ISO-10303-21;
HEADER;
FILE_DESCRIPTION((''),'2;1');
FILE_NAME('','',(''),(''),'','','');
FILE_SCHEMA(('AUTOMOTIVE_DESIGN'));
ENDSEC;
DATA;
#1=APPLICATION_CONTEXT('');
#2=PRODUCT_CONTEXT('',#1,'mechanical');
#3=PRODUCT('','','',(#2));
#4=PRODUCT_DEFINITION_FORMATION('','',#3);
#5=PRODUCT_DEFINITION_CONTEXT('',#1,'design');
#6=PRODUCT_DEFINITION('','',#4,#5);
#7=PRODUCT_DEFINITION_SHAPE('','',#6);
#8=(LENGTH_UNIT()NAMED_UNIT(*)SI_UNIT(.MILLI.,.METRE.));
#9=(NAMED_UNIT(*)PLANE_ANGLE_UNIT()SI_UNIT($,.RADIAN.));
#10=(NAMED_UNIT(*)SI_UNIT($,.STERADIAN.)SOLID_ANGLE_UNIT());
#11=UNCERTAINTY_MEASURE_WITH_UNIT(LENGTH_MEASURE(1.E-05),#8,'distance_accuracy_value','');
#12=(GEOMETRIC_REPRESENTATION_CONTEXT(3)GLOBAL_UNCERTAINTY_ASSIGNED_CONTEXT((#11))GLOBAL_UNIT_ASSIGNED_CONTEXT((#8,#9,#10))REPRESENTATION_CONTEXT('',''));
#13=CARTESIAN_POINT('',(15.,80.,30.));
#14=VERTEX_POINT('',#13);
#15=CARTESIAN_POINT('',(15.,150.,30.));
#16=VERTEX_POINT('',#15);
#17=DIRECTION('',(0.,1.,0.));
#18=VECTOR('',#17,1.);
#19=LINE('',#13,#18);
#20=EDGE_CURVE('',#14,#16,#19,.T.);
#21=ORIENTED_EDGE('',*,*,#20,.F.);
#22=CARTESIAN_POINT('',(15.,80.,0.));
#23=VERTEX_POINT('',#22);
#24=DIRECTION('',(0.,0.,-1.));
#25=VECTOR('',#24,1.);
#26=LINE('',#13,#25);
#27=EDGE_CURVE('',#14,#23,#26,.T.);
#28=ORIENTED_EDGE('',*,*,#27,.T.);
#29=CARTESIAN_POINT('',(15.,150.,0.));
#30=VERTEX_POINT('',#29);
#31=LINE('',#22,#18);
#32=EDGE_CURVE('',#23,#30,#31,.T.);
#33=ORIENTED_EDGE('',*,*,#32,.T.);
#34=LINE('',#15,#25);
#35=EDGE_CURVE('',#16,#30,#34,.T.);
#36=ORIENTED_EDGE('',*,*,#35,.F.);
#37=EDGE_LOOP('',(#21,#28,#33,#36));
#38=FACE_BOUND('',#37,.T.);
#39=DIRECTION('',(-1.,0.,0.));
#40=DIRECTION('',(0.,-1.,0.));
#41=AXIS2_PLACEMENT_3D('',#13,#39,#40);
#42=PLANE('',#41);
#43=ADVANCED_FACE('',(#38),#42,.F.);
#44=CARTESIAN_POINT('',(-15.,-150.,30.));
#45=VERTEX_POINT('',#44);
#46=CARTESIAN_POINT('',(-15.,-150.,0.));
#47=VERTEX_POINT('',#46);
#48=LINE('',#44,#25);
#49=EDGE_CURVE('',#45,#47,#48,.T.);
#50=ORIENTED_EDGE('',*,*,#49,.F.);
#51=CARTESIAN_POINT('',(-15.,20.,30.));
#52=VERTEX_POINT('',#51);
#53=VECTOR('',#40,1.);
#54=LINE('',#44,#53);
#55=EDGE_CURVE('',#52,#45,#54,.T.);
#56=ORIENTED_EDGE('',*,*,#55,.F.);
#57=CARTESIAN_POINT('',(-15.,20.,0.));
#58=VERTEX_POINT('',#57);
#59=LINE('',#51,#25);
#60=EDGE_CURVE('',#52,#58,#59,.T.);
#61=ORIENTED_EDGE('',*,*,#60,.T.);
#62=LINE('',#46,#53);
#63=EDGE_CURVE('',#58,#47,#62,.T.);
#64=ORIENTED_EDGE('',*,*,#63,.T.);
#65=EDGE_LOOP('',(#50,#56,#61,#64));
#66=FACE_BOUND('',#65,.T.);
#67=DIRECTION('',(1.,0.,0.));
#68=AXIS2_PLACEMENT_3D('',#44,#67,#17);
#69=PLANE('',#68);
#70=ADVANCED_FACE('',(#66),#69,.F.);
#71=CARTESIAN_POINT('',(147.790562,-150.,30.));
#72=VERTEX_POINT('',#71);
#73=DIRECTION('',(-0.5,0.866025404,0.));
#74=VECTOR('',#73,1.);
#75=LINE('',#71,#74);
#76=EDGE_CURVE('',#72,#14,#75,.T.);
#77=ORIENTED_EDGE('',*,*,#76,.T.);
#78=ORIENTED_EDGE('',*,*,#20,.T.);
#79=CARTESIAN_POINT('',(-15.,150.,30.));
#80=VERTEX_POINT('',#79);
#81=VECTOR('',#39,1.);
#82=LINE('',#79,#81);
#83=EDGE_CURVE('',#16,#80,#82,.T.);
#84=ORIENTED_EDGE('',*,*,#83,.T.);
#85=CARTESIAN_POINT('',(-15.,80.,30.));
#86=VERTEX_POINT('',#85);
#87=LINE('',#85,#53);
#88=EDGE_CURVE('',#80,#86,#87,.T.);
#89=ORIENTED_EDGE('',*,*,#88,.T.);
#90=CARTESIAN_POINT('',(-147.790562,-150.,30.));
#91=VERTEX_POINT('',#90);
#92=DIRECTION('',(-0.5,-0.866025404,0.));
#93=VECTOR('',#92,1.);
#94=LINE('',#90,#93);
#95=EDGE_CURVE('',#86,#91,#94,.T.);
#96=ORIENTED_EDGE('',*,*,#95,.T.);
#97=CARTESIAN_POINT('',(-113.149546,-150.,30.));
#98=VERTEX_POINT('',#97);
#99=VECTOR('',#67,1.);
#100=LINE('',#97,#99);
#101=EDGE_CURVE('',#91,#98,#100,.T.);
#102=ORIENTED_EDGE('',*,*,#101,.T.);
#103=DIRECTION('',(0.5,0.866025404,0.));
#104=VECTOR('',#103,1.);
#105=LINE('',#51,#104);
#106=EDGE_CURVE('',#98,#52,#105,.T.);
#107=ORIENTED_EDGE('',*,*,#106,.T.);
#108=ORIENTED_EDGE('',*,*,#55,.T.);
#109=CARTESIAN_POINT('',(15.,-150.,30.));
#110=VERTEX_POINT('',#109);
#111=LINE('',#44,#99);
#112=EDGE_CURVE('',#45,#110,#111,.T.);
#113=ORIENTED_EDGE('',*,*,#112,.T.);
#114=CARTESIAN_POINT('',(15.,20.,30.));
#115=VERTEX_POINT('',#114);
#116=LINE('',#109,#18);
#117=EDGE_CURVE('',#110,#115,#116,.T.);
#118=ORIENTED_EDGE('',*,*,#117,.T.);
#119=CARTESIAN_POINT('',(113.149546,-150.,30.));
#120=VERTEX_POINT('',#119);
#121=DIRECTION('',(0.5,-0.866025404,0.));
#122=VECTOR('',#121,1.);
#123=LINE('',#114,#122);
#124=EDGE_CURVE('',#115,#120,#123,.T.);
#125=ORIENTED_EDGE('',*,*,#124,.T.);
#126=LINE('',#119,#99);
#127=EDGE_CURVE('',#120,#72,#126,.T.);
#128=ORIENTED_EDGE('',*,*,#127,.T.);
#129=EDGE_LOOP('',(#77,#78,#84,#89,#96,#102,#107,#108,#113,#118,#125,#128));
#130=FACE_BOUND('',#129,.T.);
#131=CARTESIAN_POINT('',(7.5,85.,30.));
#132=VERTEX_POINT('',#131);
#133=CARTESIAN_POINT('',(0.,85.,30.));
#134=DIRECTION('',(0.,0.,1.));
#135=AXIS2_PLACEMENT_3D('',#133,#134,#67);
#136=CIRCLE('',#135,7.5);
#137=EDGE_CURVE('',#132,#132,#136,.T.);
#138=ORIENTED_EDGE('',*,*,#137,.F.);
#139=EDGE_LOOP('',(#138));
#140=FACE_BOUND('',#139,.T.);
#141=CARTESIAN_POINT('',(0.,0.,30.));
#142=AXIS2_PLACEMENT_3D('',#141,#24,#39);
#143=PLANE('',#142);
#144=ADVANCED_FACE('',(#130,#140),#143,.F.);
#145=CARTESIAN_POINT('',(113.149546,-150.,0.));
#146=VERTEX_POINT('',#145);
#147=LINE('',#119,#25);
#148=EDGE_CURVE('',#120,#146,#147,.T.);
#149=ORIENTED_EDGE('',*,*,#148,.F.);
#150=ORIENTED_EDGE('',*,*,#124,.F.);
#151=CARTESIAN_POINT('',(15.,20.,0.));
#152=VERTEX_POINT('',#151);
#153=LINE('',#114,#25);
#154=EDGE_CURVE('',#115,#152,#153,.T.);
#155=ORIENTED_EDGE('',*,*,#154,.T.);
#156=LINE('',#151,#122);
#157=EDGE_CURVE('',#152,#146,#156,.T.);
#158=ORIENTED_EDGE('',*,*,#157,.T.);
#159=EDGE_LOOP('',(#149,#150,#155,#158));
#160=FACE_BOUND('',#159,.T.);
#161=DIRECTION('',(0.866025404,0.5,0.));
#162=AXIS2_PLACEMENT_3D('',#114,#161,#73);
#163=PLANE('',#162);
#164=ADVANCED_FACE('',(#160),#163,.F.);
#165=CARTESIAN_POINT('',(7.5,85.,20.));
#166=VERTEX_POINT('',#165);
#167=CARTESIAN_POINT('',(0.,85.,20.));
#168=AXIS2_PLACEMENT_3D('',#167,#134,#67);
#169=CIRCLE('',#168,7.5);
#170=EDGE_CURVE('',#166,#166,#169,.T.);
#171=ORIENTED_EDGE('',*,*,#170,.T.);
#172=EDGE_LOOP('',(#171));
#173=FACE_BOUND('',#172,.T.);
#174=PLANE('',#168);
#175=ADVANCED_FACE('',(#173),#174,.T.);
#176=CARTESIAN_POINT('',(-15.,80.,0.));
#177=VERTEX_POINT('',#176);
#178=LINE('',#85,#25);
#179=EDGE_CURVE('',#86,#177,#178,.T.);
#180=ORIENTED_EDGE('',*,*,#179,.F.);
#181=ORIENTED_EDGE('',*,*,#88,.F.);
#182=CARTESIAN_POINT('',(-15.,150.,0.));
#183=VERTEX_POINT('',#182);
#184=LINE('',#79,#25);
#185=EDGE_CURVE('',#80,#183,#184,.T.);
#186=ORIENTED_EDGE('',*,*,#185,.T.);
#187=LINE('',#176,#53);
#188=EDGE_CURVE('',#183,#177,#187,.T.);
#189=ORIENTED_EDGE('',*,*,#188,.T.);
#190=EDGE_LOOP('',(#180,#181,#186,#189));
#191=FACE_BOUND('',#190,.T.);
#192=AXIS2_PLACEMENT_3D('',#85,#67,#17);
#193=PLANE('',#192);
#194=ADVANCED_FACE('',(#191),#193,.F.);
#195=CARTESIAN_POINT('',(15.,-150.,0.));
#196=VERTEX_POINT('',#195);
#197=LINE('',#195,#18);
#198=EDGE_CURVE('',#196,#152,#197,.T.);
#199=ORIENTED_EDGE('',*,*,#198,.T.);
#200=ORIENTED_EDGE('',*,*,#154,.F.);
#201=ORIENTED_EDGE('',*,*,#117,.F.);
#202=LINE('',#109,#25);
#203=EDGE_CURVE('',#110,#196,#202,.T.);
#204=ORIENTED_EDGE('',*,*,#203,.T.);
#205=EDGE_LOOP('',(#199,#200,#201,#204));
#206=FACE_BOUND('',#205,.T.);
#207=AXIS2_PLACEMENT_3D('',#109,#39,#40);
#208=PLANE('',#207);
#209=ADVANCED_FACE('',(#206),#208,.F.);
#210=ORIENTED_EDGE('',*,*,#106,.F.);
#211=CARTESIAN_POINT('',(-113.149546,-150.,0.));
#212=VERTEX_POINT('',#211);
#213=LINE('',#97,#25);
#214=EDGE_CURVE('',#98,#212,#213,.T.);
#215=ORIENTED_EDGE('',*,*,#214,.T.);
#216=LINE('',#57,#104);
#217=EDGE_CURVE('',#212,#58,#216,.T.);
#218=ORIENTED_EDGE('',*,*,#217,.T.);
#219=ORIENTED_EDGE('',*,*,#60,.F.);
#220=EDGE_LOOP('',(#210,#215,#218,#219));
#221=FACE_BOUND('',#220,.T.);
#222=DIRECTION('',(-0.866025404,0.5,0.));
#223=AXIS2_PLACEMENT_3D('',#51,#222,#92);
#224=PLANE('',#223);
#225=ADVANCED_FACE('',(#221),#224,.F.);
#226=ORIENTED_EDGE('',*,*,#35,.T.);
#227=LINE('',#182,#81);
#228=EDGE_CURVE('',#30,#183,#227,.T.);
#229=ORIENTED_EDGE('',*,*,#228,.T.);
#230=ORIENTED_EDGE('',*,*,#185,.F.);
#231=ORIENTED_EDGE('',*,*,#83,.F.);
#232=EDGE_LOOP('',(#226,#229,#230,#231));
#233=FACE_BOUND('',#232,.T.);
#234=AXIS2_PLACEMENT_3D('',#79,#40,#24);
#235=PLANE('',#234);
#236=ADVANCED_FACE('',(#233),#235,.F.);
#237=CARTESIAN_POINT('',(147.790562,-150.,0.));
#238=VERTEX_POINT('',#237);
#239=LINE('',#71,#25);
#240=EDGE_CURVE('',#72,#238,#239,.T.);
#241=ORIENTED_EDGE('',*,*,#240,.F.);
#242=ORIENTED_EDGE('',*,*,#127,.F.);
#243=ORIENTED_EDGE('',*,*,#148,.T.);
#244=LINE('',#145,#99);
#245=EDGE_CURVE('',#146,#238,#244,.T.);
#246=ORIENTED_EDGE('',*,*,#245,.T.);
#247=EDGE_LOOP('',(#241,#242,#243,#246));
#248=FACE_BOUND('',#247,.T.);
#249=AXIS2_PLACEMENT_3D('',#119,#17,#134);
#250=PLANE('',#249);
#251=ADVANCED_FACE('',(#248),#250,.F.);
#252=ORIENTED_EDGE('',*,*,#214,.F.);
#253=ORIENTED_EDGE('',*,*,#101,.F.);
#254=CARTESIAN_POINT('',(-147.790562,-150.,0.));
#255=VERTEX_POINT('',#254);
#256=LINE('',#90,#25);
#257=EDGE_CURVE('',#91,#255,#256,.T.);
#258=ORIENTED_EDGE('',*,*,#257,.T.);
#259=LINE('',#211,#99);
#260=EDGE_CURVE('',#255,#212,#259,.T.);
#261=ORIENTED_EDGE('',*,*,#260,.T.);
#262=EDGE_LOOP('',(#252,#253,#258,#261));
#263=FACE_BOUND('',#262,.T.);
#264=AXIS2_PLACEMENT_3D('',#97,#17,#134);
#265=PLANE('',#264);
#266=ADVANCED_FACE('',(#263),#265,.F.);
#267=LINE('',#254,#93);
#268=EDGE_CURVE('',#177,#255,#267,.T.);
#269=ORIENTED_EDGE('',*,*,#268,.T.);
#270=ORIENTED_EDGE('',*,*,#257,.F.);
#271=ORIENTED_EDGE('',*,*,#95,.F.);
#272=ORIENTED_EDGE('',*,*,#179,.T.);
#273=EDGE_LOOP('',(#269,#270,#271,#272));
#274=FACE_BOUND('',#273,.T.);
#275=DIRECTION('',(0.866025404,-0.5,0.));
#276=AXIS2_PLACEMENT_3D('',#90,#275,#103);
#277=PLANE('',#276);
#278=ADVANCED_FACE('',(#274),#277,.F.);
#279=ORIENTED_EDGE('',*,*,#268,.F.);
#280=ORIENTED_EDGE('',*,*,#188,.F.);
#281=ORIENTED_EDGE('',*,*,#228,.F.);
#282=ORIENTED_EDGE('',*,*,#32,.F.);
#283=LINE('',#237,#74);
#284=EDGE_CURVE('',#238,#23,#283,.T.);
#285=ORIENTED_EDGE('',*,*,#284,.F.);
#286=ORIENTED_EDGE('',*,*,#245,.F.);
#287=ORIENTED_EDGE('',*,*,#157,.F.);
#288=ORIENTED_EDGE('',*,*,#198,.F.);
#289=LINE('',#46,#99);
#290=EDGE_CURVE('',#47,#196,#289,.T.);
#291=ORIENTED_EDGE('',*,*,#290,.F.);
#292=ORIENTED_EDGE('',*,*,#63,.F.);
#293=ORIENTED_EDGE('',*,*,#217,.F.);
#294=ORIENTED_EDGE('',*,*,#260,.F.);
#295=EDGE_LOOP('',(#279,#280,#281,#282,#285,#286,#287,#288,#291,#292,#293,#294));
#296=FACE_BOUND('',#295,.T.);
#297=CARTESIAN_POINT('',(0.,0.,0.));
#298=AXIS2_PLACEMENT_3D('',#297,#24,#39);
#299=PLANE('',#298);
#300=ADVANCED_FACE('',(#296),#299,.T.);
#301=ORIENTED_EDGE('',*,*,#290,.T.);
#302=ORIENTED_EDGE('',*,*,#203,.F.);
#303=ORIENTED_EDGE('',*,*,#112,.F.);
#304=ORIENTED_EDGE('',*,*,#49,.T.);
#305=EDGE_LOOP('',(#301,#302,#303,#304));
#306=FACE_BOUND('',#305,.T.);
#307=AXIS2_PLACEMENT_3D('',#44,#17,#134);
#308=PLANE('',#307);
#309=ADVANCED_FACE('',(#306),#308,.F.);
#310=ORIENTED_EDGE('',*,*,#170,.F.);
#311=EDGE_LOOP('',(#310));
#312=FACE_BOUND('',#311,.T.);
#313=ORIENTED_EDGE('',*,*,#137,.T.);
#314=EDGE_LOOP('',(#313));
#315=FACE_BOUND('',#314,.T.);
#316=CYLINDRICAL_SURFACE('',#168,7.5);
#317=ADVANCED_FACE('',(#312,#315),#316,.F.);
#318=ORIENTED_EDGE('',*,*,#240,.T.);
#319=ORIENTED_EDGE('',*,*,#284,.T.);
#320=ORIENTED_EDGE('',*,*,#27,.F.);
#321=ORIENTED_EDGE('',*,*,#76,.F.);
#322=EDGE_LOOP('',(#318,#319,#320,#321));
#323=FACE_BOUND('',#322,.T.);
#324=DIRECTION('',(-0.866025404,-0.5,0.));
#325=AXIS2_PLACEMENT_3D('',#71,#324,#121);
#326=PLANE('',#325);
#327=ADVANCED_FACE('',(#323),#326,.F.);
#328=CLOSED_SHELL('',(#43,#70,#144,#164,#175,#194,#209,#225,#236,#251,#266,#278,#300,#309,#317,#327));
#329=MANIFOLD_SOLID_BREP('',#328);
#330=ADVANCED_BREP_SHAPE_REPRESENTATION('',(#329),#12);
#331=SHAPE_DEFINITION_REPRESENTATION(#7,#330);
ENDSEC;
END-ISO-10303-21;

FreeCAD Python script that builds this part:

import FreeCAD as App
import Part
import Sketcher

V = App.Vector
Q = App.Units.Quantity


def add_polygon(sketch, points):
    """Adds a closed chain of lines whose ends are joined by coincident constraints."""
    first, n = sketch.GeometryCount, len(points)
    for a, b in zip(points, points[1:] + points[:1]):
        sketch.addGeometry(Part.LineSegment(App.Vector(*a, 0), App.Vector(*b, 0)), False)
    for i in range(n):
        sketch.addConstraint(Sketcher.Constraint("Coincident", first + i, 2, first + (i + 1) % n, 1))

doc = App.newDocument("Part")
params = doc.addObject("Spreadsheet::Sheet", "Params")
for row, (alias, value) in enumerate([
    ("sketch1_width", "30 mm"),
    ("sketch1_height", "170 mm"),
    ("sketch1_height2", "70 mm"),
    ("pad1_length", "30 mm"),
    ("sketch2_diameter", "15 mm"),
    ("pocket1_length", "10 mm"),
], start=1):
    params.set(f"A{row}", alias)
    params.set(f"B{row}", "=" + value)
    params.setAlias(f"B{row}", alias)

body = doc.addObject("PartDesign::Body", "Body")

sketch1 = body.newObject("Sketcher::SketchObject", "Sketch")
sketch1.AttachmentSupport = (doc.getObject("XY_Plane"), [""])
sketch1.MapMode = "FlatFace"
add_polygon(sketch1, [(-113, -150), (-15, 20), (-15, -150), (15, -150), (15, 20), (113, -150), (148, -150), (15, 80), (15, 150), (-15, 150), (-15, 80), (-148, -150)])
sketch1.addConstraint([
    Sketcher.Constraint("Vertical", 1),
    Sketcher.Constraint("Horizontal", 2),
    Sketcher.Constraint("Vertical", 3),
    Sketcher.Constraint("Horizontal", 5),
    Sketcher.Constraint("Vertical", 7),
    Sketcher.Constraint("Horizontal", 8),
    Sketcher.Constraint("Vertical", 9),
    Sketcher.Constraint("Horizontal", 11),
    Sketcher.Constraint("Symmetric", 1, 2, 7, 2, -1, 1),
    Sketcher.Constraint("Symmetric", 0, 2, 3, 2, -2),
    Sketcher.Constraint("Symmetric", 6, 2, 9, 2, -2),
    Sketcher.Constraint("Symmetric", 5, 2, 10, 2, -2),
    Sketcher.Constraint("Parallel", 4, 6),
    Sketcher.Constraint("Parallel", 0, 10),
    Sketcher.Constraint("Horizontal", 2, 2, 4, 2),
    Sketcher.Constraint("DistanceX", 2, 1, 2, 2, Q("30 mm")),
    Sketcher.Constraint("DistanceY", 1, 2, 1, 1, Q("170 mm")),
    Sketcher.Constraint("DistanceY", 7, 1, 7, 2, Q("70 mm")),
    Sketcher.Constraint("Angle", 0, Q("60 deg")),
    Sketcher.Constraint("DistanceY", -1, 1, 0, 2, Q("20 mm")),
])
sketch1.setExpression("Constraints[27]", "Params.sketch1_width")
sketch1.setExpression("Constraints[28]", "Params.sketch1_height")
sketch1.setExpression("Constraints[29]", "Params.sketch1_height2")
pad1 = body.newObject("PartDesign::Pad", "Pad")
pad1.Profile = sketch1
pad1.setExpression("Length", "Params.pad1_length")

sketch2 = body.newObject("Sketcher::SketchObject", "Sketch001")
sketch2.AttachmentSupport = (doc.getObject("XY_Plane"), [""])
sketch2.MapMode = "FlatFace"
sketch2.AttachmentOffset = App.Placement(V(0, 0, 30), App.Rotation())
sketch2.addGeometry(Part.Circle(V(0, 85, 0), V(0, 0, 1), 8), False)
sketch2.addConstraint([
    Sketcher.Constraint("PointOnObject", 0, 3, -2),
    Sketcher.Constraint("Diameter", 0, Q("15 mm")),
    Sketcher.Constraint("DistanceY", -1, 1, 0, 3, Q("85 mm")),
])
sketch2.setExpression("Constraints[1]", "Params.sketch2_diameter")
pocket1 = body.newObject("PartDesign::Pocket", "Pocket")
pocket1.Profile = sketch2
pocket1.setExpression("Length", "Params.pocket1_length")

doc.recompute()
